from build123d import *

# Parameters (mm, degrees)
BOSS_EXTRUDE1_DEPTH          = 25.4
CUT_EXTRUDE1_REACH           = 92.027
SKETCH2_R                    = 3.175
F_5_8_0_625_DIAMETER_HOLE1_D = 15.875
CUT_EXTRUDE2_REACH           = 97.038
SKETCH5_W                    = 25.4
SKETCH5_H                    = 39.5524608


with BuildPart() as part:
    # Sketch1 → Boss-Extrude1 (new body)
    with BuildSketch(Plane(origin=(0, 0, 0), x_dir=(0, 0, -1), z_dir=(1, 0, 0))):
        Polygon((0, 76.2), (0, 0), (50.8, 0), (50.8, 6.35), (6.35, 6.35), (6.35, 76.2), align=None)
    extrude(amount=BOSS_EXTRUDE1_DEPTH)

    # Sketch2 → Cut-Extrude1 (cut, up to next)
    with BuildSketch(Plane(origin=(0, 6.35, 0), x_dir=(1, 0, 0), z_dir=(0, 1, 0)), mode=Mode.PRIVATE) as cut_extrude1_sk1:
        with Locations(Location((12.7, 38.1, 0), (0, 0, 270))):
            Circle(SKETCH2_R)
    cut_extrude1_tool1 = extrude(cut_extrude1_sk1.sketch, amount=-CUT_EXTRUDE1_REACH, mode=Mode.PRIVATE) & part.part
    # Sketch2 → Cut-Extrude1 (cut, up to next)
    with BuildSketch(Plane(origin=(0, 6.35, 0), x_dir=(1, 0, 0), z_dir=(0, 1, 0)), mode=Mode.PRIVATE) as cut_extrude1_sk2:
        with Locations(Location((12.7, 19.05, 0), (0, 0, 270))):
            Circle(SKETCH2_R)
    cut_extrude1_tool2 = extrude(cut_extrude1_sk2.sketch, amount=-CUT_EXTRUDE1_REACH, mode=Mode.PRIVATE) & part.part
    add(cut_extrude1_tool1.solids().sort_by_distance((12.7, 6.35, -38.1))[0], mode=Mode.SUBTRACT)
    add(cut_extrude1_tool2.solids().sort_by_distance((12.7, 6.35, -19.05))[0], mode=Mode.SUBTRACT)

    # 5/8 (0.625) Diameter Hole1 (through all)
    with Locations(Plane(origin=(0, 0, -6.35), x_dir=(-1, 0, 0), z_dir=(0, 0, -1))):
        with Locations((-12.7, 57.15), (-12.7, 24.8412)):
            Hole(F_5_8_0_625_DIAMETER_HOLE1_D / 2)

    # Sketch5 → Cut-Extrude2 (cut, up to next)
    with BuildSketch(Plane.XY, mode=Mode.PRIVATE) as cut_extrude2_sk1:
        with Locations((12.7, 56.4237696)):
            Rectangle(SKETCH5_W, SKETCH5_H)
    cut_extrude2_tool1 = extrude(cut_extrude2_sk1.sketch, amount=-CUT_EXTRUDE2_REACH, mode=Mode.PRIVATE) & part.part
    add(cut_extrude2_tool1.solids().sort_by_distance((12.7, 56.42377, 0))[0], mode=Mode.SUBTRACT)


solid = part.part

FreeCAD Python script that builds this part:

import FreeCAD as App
import Part
import Sketcher
Q = App.Units.Quantity

doc = App.newDocument("Part")
params = doc.addObject("Spreadsheet::Sheet", "Params")
for row, (alias, value) in enumerate([
    ("sketch1_width", "3 in"),
    ("sketch1_height", "2 in"),
    ("sketch1_width2", "0.25 in"),
    ("pad1_length", "1 in"),
    ("sketch2_diameter", "0.25 in"),
    ("sketch3_diameter", "0.25 in"),
    ("sketch4_diameter", "0.625 in"),
    ("hole_diameter", "0.625 in"),
    ("sketch5_width", "1 in"),
    ("pocket3_length", "0.25 in"),
], start=1):
    params.set(f"A{row}", alias)
    params.set(f"B{row}", "=" + value)
    params.setAlias(f"B{row}", alias)

body = doc.addObject("PartDesign::Body", "Body")

# Sketch on YZ plane
sketch1 = body.newObject("Sketcher::SketchObject", "Sketch")
sketch1.AttachmentSupport = (doc.getObject("YZ_Plane"), [""])
sketch1.MapMode = "FlatFace"
sketch1.addGeometry([
    Part.LineSegment(App.Vector(76, 0, 0), App.Vector(0, 0, 0)),  # 0
    Part.LineSegment(App.Vector(0, 0, 0), App.Vector(0, -51, 0)),  # 1
    Part.LineSegment(App.Vector(0, -51, 0), App.Vector(6, -51, 0)),  # 2
    Part.LineSegment(App.Vector(6, -51, 0), App.Vector(6, -6, 0)),  # 3
    Part.LineSegment(App.Vector(6, -6, 0), App.Vector(76, -6, 0)),  # 4
    Part.LineSegment(App.Vector(76, -6, 0), App.Vector(76, 0, 0)),  # 5
], False)
sketch1.addConstraint([
    Sketcher.Constraint("Coincident", 0, 2, 1, 1),
    Sketcher.Constraint("Coincident", 1, 2, 2, 1),
    Sketcher.Constraint("Coincident", 2, 2, 3, 1),
    Sketcher.Constraint("Coincident", 3, 2, 4, 1),
    Sketcher.Constraint("Coincident", 4, 2, 5, 1),
    Sketcher.Constraint("Coincident", 5, 2, 0, 1),
    Sketcher.Constraint("Horizontal", 0),
    Sketcher.Constraint("Vertical", 1),
    Sketcher.Constraint("Horizontal", 2),
    Sketcher.Constraint("Vertical", 3),
    Sketcher.Constraint("Horizontal", 4),
    Sketcher.Constraint("Vertical", 5),
    Sketcher.Constraint("Coincident", 0, 2, -1, 1),
    Sketcher.Constraint("Equal", 2, 5),
    Sketcher.Constraint("DistanceX", 0, 2, 0, 1, Q("3 in")),
    Sketcher.Constraint("DistanceY", 1, 2, 1, 1, Q("2 in")),
    Sketcher.Constraint("DistanceX", 2, 1, 2, 2, Q("0.25 in")),
])
sketch1.setExpression("Constraints[14]", "Params.sketch1_width")
sketch1.setExpression("Constraints[15]", "Params.sketch1_height")
sketch1.setExpression("Constraints[16]", "Params.sketch1_width2")
pad1 = body.newObject("PartDesign::Pad", "Pad")
pad1.Profile = sketch1
pad1.setExpression("Length", "Params.pad1_length")

# Sketch on XZ plane
sketch2 = body.newObject("Sketcher::SketchObject", "Sketch001")
sketch2.AttachmentSupport = (doc.getObject("XZ_Plane"), [""])
sketch2.MapMode = "FlatFace"
sketch2.AttachmentOffset = App.Placement(App.Vector(0, 0, -0.25 * 25.4), App.Rotation())
sketch2.addGeometry(Part.Circle(App.Vector(12.7, -38.1, 0), App.Vector(0, 0, 1), 3.2), False)
sketch2.addConstraint([
    Sketcher.Constraint("Diameter", 0, Q("0.25 in")),
    Sketcher.Constraint("DistanceX", -1, 1, 0, 3, Q("0.5 in")),
    Sketcher.Constraint("DistanceY", 0, 3, -1, 1, Q("1.5 in")),
])
sketch2.setExpression("Constraints[0]", "Params.sketch2_diameter")
pocket1 = body.newObject("PartDesign::Pocket", "Pocket")
pocket1.Profile = sketch2
pocket1.Type = "UpToFirst"
pocket1.Reversed = True

# Sketch on XZ plane
sketch3 = body.newObject("Sketcher::SketchObject", "Sketch002")
sketch3.AttachmentSupport = (doc.getObject("XZ_Plane"), [""])
sketch3.MapMode = "FlatFace"
sketch3.AttachmentOffset = App.Placement(App.Vector(0, 0, -0.25 * 25.4), App.Rotation())
sketch3.addGeometry(Part.Circle(App.Vector(12.7, -19.1, 0), App.Vector(0, 0, 1), 3.2), False)
sketch3.addConstraint([
    Sketcher.Constraint("Diameter", 0, Q("0.25 in")),
    Sketcher.Constraint("DistanceX", -1, 1, 0, 3, Q("0.5 in")),
    Sketcher.Constraint("DistanceY", 0, 3, -1, 1, Q("0.75 in")),
])
sketch3.setExpression("Constraints[0]", "Params.sketch3_diameter")
pocket2 = body.newObject("PartDesign::Pocket", "Pocket001")
pocket2.Profile = sketch3
pocket2.Type = "UpToFirst"
pocket2.Reversed = True

# Sketch on XY plane
sketch4 = body.newObject("Sketcher::SketchObject", "Sketch003")
sketch4.AttachmentSupport = (doc.getObject("XY_Plane"), [""])
sketch4.MapMode = "FlatFace"
sketch4.AttachmentOffset = App.Placement(App.Vector(0, 0, -0.25 * 25.4), App.Rotation())
sketch4.addGeometry([
    Part.Circle(App.Vector(13, 57, 0), App.Vector(0, 0, 1), 8),
    Part.Circle(App.Vector(13, 25, 0), App.Vector(0, 0, 1), 8),
], False)
sketch4.addConstraint([
    Sketcher.Constraint("Equal", 0, 1),
    Sketcher.Constraint("Vertical", 0, 3, 1, 3),
    Sketcher.Constraint("Diameter", 0, Q("0.625 in")),
    Sketcher.Constraint("DistanceX", -1, 1, 0, 3, Q("0.5 in")),
    Sketcher.Constraint("DistanceY", -1, 1, 0, 3, Q("2.25 in")),
    Sketcher.Constraint("DistanceY", -1, 1, 1, 3, Q("0.978 in")),
])
sketch4.setExpression("Constraints[2]", "Params.sketch4_diameter")
doc.recompute()
hole = body.newObject("PartDesign::Hole", "Hole")
hole.Profile = sketch4
hole.ThreadType = "None"
hole.setExpression("Diameter", "Params.hole_diameter")
hole.DepthType = "ThroughAll"
hole.Reversed = True

# Sketch on XY plane
sketch5 = body.newObject("Sketcher::SketchObject", "Sketch004")
sketch5.AttachmentSupport = (doc.getObject("XY_Plane"), [""])
sketch5.MapMode = "FlatFace"
sketch5.addGeometry([
    Part.LineSegment(App.Vector(0, 76, 0), App.Vector(0, 37, 0)),
    Part.LineSegment(App.Vector(0, 37, 0), App.Vector(25, 37, 0)),
    Part.LineSegment(App.Vector(25, 37, 0), App.Vector(25, 76, 0)),
    Part.LineSegment(App.Vector(25, 76, 0), App.Vector(0, 76, 0)),
], False)
sketch5.addConstraint([
    Sketcher.Constraint("Coincident", 0, 2, 1, 1),
    Sketcher.Constraint("Coincident", 1, 2, 2, 1),
    Sketcher.Constraint("Coincident", 2, 2, 3, 1),
    Sketcher.Constraint("Coincident", 3, 2, 0, 1),
    Sketcher.Constraint("Vertical", 0),
    Sketcher.Constraint("Horizontal", 1),
    Sketcher.Constraint("Vertical", 2),
    Sketcher.Constraint("Horizontal", 3),
    Sketcher.Constraint("PointOnObject", 0, 2, -2),
    Sketcher.Constraint("DistanceX", 1, 1, 1, 2, Q("1 in")),
    Sketcher.Constraint("DistanceY", -1, 1, 2, 2, Q("3 in")),
    Sketcher.Constraint("DistanceY", 0, 2, 0, 1, 39.552461),
])
sketch5.setExpression("Constraints[9]", "Params.sketch5_width")
pocket3 = body.newObject("PartDesign::Pocket", "Pocket002")
pocket3.Profile = sketch5
pocket3.setExpression("Length", "Params.pocket3_length")

doc.recompute()
